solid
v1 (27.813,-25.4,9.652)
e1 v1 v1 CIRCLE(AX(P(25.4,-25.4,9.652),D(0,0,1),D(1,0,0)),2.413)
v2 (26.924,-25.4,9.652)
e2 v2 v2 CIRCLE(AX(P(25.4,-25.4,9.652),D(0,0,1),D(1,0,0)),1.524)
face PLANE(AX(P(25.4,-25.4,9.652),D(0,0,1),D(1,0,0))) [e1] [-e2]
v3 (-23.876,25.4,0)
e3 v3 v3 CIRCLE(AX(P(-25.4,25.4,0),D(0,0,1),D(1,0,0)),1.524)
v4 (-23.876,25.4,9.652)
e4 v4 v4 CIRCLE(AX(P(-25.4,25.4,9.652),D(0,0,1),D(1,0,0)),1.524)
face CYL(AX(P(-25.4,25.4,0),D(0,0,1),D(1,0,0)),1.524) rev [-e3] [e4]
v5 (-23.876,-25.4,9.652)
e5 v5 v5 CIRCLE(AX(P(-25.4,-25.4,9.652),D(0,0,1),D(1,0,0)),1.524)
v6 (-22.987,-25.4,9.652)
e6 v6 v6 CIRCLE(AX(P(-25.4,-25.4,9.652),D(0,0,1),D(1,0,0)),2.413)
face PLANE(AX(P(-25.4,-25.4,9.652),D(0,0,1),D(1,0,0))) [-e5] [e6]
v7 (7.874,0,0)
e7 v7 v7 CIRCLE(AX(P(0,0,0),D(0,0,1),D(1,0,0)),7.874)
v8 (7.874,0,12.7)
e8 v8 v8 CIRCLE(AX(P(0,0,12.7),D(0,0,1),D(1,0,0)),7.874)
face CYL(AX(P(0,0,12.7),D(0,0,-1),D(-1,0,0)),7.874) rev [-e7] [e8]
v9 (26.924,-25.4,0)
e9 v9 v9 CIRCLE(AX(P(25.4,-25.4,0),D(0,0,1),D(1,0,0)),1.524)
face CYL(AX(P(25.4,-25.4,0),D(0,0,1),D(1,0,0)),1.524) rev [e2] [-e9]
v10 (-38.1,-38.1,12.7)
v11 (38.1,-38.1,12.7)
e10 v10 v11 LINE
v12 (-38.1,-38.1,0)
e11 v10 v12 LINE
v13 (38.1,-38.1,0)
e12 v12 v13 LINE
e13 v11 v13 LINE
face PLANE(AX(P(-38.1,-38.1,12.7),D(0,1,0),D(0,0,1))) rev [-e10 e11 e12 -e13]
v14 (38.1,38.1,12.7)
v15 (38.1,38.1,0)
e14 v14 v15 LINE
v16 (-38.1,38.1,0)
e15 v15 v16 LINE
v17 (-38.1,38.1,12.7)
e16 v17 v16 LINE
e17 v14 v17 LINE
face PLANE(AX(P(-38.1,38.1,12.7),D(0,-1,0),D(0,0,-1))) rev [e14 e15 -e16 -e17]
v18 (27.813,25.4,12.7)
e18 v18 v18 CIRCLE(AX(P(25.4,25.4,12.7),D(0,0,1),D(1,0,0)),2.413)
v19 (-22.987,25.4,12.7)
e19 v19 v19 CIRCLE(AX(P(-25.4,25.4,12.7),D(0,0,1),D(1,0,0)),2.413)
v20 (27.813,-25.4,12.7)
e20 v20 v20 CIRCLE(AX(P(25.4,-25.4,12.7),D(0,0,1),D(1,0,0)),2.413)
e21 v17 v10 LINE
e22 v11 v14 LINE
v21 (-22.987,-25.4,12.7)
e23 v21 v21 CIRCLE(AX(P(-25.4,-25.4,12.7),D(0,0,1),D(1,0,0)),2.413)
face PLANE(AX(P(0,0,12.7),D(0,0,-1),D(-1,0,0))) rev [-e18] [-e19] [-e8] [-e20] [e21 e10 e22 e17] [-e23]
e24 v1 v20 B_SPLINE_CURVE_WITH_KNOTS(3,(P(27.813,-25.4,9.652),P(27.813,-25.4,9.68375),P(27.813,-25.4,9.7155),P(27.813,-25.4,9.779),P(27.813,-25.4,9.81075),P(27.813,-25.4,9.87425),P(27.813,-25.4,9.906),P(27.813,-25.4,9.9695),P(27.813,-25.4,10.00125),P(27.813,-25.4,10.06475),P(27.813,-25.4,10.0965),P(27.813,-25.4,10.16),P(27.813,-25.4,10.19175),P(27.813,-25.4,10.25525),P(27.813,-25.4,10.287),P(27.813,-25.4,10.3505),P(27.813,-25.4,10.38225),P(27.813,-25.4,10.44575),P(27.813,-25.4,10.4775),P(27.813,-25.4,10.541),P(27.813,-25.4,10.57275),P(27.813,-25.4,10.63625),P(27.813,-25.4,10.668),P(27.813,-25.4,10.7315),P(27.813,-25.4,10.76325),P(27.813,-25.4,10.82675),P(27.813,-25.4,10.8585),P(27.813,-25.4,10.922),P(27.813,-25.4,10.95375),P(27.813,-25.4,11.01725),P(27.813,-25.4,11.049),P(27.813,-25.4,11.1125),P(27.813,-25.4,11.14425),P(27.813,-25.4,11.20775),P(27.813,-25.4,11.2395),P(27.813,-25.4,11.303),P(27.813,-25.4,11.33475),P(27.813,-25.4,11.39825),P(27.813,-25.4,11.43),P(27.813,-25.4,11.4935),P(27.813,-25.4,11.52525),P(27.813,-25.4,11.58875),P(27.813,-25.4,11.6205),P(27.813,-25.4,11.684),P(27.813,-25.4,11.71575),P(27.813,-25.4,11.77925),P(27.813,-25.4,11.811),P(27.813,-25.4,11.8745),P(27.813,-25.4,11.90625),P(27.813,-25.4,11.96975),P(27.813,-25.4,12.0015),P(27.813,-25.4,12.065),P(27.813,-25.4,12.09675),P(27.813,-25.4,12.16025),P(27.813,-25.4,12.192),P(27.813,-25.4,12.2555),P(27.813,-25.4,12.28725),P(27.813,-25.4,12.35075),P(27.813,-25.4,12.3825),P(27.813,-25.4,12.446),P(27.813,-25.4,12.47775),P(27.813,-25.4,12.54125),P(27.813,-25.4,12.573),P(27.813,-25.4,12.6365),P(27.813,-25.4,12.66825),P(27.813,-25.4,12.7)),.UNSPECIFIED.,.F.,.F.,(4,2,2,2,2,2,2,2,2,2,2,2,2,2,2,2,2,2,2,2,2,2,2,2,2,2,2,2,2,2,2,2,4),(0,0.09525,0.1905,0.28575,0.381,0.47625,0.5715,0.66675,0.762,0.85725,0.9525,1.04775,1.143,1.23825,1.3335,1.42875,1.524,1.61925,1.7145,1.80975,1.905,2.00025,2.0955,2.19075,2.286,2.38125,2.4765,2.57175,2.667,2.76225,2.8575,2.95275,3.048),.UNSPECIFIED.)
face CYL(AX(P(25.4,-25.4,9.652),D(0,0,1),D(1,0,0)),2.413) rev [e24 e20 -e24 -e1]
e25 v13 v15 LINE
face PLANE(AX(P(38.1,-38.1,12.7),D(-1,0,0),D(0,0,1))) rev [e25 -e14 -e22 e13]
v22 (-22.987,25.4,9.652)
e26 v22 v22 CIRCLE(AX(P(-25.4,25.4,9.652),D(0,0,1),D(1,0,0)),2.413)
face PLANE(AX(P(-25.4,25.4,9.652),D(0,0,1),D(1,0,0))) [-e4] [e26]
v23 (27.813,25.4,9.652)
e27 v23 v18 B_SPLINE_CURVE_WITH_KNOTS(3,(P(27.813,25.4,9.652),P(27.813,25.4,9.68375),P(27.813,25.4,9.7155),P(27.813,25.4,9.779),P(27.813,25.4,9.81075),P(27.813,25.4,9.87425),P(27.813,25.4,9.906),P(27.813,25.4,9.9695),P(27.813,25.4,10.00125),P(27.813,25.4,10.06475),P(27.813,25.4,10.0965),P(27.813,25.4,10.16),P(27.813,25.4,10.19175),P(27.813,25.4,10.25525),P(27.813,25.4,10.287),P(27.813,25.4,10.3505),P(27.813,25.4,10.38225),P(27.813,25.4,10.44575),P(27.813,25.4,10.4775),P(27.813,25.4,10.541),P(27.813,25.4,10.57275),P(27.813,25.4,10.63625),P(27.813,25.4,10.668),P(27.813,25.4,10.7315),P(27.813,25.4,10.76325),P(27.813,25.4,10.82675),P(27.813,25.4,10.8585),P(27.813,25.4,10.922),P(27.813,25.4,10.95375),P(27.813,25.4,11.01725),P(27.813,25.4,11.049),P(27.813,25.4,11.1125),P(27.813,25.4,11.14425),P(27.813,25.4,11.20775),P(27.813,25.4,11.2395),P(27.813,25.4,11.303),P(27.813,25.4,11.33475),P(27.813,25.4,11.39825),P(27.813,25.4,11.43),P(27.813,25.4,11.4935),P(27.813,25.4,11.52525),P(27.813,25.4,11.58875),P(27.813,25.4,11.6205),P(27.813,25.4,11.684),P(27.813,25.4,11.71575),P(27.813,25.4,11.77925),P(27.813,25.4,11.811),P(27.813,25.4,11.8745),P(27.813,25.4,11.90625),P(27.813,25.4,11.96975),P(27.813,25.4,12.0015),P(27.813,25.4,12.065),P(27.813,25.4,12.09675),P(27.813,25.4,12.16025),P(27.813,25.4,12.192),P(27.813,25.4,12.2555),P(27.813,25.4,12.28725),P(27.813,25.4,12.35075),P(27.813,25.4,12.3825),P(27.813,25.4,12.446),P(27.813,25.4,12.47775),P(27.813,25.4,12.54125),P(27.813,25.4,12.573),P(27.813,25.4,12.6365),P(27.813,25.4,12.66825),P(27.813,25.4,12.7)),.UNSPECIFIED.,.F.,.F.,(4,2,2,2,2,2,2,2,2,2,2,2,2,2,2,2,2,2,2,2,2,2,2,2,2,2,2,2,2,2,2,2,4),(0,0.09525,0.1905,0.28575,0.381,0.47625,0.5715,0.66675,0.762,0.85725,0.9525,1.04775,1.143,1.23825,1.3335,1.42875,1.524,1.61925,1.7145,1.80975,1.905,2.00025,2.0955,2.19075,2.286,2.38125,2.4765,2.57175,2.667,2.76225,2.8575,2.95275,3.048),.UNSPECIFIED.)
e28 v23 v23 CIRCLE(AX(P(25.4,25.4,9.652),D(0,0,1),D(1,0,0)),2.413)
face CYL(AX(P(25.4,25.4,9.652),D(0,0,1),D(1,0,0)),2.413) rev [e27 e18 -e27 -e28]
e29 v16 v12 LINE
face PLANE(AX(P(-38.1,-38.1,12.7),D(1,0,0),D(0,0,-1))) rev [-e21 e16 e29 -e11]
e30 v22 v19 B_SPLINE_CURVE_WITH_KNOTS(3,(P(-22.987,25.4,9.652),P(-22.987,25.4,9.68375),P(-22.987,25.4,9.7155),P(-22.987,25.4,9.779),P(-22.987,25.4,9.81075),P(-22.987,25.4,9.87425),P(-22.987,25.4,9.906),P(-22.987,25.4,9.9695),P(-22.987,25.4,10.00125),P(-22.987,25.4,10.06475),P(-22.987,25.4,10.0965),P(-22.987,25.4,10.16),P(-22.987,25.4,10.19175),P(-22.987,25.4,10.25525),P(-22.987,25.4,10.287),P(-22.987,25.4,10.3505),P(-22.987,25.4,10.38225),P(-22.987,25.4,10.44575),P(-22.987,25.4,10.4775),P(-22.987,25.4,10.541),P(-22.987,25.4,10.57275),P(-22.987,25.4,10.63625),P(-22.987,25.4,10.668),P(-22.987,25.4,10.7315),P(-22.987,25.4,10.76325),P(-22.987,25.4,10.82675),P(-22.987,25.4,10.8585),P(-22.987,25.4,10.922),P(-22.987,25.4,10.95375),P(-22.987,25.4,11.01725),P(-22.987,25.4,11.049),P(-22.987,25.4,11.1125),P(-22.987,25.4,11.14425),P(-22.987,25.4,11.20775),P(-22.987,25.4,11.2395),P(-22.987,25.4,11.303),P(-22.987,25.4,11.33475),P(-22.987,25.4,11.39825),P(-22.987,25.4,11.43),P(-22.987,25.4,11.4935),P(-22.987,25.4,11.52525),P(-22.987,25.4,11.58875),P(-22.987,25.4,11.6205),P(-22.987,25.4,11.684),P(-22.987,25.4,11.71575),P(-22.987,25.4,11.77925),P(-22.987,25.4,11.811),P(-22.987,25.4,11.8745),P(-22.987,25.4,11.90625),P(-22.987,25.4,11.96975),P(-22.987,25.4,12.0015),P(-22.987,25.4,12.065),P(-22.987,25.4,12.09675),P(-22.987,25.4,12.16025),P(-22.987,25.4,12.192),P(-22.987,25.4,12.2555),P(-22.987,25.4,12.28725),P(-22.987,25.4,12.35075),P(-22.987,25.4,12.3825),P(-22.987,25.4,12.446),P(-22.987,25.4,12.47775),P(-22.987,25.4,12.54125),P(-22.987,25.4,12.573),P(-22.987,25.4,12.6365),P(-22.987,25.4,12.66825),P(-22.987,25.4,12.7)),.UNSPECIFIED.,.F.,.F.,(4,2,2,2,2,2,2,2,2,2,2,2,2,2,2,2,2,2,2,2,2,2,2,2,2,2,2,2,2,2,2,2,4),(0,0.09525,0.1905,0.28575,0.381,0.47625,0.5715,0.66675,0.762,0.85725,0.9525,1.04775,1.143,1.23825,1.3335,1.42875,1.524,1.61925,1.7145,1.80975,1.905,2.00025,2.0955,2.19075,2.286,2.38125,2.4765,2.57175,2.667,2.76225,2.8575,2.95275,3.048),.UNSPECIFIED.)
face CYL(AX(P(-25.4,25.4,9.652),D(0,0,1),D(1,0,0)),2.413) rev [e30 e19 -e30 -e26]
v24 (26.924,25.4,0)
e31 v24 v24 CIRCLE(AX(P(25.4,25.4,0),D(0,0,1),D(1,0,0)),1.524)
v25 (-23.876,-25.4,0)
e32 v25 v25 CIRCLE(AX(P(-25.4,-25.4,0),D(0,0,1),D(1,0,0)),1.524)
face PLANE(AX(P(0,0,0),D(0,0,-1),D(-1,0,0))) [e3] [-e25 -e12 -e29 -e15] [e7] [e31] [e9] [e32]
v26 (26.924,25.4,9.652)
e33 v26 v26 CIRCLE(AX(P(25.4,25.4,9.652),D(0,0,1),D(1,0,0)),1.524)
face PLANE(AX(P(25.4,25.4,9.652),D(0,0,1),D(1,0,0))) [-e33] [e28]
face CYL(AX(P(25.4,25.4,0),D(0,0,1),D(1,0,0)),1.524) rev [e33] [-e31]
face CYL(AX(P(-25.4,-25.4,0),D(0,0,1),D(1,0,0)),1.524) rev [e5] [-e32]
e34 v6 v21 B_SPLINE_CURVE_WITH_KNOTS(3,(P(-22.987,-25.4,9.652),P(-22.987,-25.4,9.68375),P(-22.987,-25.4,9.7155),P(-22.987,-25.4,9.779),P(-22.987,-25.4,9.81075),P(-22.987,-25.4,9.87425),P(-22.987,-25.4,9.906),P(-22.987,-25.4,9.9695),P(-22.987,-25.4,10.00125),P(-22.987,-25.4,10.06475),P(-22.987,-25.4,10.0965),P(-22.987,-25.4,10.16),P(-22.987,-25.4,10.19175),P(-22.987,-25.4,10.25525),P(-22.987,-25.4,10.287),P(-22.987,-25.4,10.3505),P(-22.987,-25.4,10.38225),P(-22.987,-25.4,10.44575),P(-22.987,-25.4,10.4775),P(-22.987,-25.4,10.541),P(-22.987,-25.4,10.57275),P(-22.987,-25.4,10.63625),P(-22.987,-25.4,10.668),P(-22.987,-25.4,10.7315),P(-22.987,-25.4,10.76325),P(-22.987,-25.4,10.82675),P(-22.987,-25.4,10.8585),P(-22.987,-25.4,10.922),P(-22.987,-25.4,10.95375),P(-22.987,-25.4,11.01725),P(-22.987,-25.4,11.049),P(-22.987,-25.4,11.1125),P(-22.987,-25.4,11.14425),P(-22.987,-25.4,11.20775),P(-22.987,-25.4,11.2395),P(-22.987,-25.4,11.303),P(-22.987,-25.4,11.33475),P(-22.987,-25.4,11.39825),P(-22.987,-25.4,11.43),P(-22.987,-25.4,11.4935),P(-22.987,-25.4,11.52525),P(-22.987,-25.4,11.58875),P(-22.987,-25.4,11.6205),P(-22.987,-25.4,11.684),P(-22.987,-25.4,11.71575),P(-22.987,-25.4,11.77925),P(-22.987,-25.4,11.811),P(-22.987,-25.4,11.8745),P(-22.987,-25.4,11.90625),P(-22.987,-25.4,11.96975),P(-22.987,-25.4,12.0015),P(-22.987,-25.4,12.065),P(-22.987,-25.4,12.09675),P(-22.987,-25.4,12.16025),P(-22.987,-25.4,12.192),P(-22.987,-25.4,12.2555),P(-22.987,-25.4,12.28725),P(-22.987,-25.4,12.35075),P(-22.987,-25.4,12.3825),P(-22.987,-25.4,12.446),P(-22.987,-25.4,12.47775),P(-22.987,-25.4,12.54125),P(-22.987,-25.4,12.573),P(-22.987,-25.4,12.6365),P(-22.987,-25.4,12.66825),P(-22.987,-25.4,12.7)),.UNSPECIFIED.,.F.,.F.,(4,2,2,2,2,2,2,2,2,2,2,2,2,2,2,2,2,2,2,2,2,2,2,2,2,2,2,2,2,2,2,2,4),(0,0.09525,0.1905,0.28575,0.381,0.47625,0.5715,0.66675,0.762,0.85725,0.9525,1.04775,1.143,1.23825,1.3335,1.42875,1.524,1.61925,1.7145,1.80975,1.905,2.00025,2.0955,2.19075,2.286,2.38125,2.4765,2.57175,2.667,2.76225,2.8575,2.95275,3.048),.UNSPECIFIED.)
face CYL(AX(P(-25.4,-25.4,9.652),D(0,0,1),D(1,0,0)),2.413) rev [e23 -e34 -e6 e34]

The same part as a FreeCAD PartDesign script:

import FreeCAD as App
import Part
import Sketcher

V = App.Vector
Q = App.Units.Quantity


def add_polygon(sketch, points):
    """Adds a closed chain of lines whose ends are joined by coincident constraints."""
    first, n = sketch.GeometryCount, len(points)
    for a, b in zip(points, points[1:] + points[:1]):
        sketch.addGeometry(Part.LineSegment(App.Vector(*a, 0), App.Vector(*b, 0)), False)
    for i in range(n):
        sketch.addConstraint(Sketcher.Constraint("Coincident", first + i, 2, first + (i + 1) % n, 1))

doc = App.newDocument("Part")
params = doc.addObject("Spreadsheet::Sheet", "Params")
for row, (alias, value) in enumerate([
    ("sketch1_diameter", "0.62 in"),
    ("sketch1_width", "3 in"),
    ("pad1_length", "0.5 in"),
    ("sketch2_diameter", "0.19 in"),
    ("pocket1_length", "0.12 in"),
    ("sketch3_diameter", "0.12 in"),
], start=1):
    params.set(f"A{row}", alias)
    params.set(f"B{row}", "=" + value)
    params.setAlias(f"B{row}", alias)

body = doc.addObject("PartDesign::Body", "Body")

# Sketch on XY plane
sketch1 = doc.addObject("Sketcher::SketchObject", "Sketch")
body.addObject(sketch1)
sketch1.AttachmentSupport = (doc.XY_Plane, [""])
sketch1.MapMode = "FlatFace"
add_polygon(sketch1, [(-38, 38), (-38, -38), (38, -38), (38, 38)])  # lines 0-3
sketch1.addGeometry(Part.Circle(V(0, 0, 0), V(0, 0, 1), 8), False)  # 4
sketch1.addConstraint(Sketcher.Constraint("Vertical", 0))
sketch1.addConstraint(Sketcher.Constraint("Horizontal", 1))
sketch1.addConstraint(Sketcher.Constraint("Vertical", 2))
sketch1.addConstraint(Sketcher.Constraint("Horizontal", 3))
sketch1.addConstraint(Sketcher.Constraint("Coincident", 4, 3, -1, 1))
sketch1.addConstraint(Sketcher.Constraint("Symmetric", 0, 2, 2, 2, -1, 1))
sketch1.addConstraint(Sketcher.Constraint("Equal", 3, 0))
sketch1.addConstraint(Sketcher.Constraint("Diameter", 4, Q("0.62 in")))
sketch1.addConstraint(Sketcher.Constraint("DistanceX", 1, 1, 1, 2, Q("3 in")))
sketch1.setExpression("Constraints[11]", "Params.sketch1_diameter")
sketch1.setExpression("Constraints[12]", "Params.sketch1_width")
pad1 = doc.addObject("PartDesign::Pad", "Pad")
body.addObject(pad1)
pad1.Profile = sketch1
pad1.setExpression("Length", "Params.pad1_length")

# Sketch on XY plane
sketch2 = doc.addObject("Sketcher::SketchObject", "Sketch001")
body.addObject(sketch2)
sketch2.AttachmentSupport = (doc.XY_Plane, [""])
sketch2.MapMode = "FlatFace"
sketch2.AttachmentOffset = App.Placement(V(0, 0, 0.5 * 25.4), App.Rotation())
sketch2.addGeometry(Part.Circle(V(-25.4, 25.4, 0), V(0, 0, 1), 2.4), False)
sketch2.addGeometry(Part.Circle(V(25.4, 25.4, 0), V(0, 0, 1), 2.4), False)
sketch2.addGeometry(Part.Circle(V(25.4, -25.4, 0), V(0, 0, 1), 2.4), False)
sketch2.addGeometry(Part.Circle(V(-25.4, -25.4, 0), V(0, 0, 1), 2.4), False)
sketch2.addConstraint(Sketcher.Constraint("Equal", 0, 1))
sketch2.addConstraint(Sketcher.Constraint("Equal", 1, 2))
sketch2.addConstraint(Sketcher.Constraint("Equal", 2, 3))
sketch2.addConstraint(Sketcher.Constraint("Symmetric", 0, 3, 2, 3, -1, 1))
sketch2.addConstraint(Sketcher.Constraint("Symmetric", 1, 3, 3, 3, -1, 1))
sketch2.addConstraint(Sketcher.Constraint("Symmetric", 0, 3, 1, 3, -2))
sketch2.addConstraint(Sketcher.Constraint("Diameter", 0, Q("0.19 in")))
sketch2.addConstraint(Sketcher.Constraint("DistanceX", 0, 3, -1, 1, Q("1 in")))
sketch2.addConstraint(Sketcher.Constraint("DistanceY", -1, 1, 0, 3, Q("1 in")))
sketch2.setExpression("Constraints[6]", "Params.sketch2_diameter")
pocket1 = doc.addObject("PartDesign::Pocket", "Pocket")
body.addObject(pocket1)
pocket1.Profile = sketch2
pocket1.setExpression("Length", "Params.pocket1_length")

# Sketch on XY plane
sketch3 = doc.addObject("Sketcher::SketchObject", "Sketch002")
body.addObject(sketch3)
sketch3.AttachmentSupport = (doc.XY_Plane, [""])
sketch3.MapMode = "FlatFace"
sketch3.AttachmentOffset = App.Placement(V(0, 0, 0.38 * 25.4), App.Rotation())
sketch3.addGeometry(Part.Circle(V(-25.4, 25.4, 0), V(0, 0, 1), 1.5), False)
sketch3.addGeometry(Part.Circle(V(25.4, 25.4, 0), V(0, 0, 1), 1.5), False)
sketch3.addGeometry(Part.Circle(V(25.4, -25.4, 0), V(0, 0, 1), 1.5), False)
sketch3.addGeometry(Part.Circle(V(-25.4, -25.4, 0), V(0, 0, 1), 1.5), False)
sketch3.addConstraint(Sketcher.Constraint("Equal", 0, 1))
sketch3.addConstraint(Sketcher.Constraint("Equal", 1, 2))
sketch3.addConstraint(Sketcher.Constraint("Equal", 2, 3))
sketch3.addConstraint(Sketcher.Constraint("Symmetric", 0, 3, 2, 3, -1, 1))
sketch3.addConstraint(Sketcher.Constraint("Symmetric", 1, 3, 3, 3, -1, 1))
sketch3.addConstraint(Sketcher.Constraint("Symmetric", 0, 3, 1, 3, -2))
sketch3.addConstraint(Sketcher.Constraint("Diameter", 0, Q("0.12 in")))
sketch3.addConstraint(Sketcher.Constraint("DistanceX", 0, 3, -1, 1, Q("1 in")))
sketch3.addConstraint(Sketcher.Constraint("DistanceY", -1, 1, 0, 3, Q("1 in")))
sketch3.setExpression("Constraints[6]", "Params.sketch3_diameter")
pocket2 = doc.addObject("PartDesign::Pocket", "Pocket001")
body.addObject(pocket2)
pocket2.Profile = sketch3
pocket2.Type = "ThroughAll"

doc.recompute()
